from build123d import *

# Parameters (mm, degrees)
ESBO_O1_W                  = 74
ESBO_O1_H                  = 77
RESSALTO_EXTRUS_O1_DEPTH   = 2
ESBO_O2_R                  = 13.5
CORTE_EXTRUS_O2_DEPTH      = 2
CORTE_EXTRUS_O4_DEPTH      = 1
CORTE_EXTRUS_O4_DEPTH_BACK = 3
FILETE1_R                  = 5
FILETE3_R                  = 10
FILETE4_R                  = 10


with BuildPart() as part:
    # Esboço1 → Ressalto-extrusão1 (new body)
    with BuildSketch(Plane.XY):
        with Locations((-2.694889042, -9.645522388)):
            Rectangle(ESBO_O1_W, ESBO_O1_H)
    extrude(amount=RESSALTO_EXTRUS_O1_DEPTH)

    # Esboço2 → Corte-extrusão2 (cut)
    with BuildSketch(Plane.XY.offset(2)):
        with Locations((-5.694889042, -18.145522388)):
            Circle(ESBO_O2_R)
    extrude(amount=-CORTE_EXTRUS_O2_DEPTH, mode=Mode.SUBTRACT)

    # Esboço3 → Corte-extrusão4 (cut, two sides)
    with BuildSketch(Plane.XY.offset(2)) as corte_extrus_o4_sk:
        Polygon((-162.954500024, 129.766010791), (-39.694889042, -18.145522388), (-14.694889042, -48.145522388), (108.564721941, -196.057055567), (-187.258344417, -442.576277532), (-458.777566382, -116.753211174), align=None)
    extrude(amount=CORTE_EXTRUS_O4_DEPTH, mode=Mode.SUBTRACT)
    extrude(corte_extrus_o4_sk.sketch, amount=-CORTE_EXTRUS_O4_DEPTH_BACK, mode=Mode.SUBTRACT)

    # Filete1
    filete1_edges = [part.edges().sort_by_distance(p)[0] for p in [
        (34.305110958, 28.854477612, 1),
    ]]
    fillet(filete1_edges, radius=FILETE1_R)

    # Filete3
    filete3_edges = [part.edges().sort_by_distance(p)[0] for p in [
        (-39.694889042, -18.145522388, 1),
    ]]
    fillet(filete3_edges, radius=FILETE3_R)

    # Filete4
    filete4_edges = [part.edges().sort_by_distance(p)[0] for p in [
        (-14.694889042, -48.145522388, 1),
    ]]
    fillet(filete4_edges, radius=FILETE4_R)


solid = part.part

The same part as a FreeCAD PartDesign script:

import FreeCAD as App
import Part
import Sketcher
from FreeCAD import Vector


def edges_at(feature, points):
    """Names of the edges that pass closest to the given points."""
    edges = feature.Shape.Edges
    near = lambda p: min(range(len(edges)), key=lambda i: edges[i].distToShape(Part.Vertex(*p))[0])
    return sorted({f"Edge{near(p) + 1}" for p in points})

doc = App.newDocument("Part")
params = doc.addObject("Spreadsheet::Sheet", "Params")
for row, (alias, value) in enumerate([
    ("sketch1_width", "74 mm"),
    ("sketch1_height", "77 mm"),
    ("pad1_length", "2 mm"),
    ("sketch2_diameter", "27 mm"),
    ("pocket1_length", "2 mm"),
    ("fillet_radius", "5 mm"),
    ("fillet2_radius", "10 mm"),
    ("fillet3_radius", "10 mm"),
], start=1):
    params.set(f"A{row}", alias)
    params.set(f"B{row}", "=" + value)
    params.setAlias(f"B{row}", alias)

body = doc.addObject("PartDesign::Body", "Body")

# Sketch on XY plane
sketch1 = body.newObject("Sketcher::SketchObject", "Sketch")
sketch1.AttachmentSupport = (doc.getObject("XY_Plane"), [""])
sketch1.MapMode = "FlatFace"
sketch1.addGeometry([
    Part.LineSegment(Vector(-40, 29, 0), Vector(-40, -48, 0)),
    Part.LineSegment(Vector(-40, -48, 0), Vector(34, -48, 0)),
    Part.LineSegment(Vector(34, -48, 0), Vector(34, 29, 0)),
    Part.LineSegment(Vector(34, 29, 0), Vector(-40, 29, 0)),
], False)
sketch1.addConstraint([
    Sketcher.Constraint("Coincident", 0, 2, 1, 1),
    Sketcher.Constraint("Coincident", 1, 2, 2, 1),
    Sketcher.Constraint("Coincident", 2, 2, 3, 1),
    Sketcher.Constraint("Coincident", 3, 2, 0, 1),
    Sketcher.Constraint("Vertical", 0),
    Sketcher.Constraint("Horizontal", 1),
    Sketcher.Constraint("Vertical", 2),
    Sketcher.Constraint("Horizontal", 3),
    Sketcher.Constraint("DistanceX", 1, 1, 1, 2, 74.0),
    Sketcher.Constraint("DistanceY", 0, 2, 0, 1, 77.0),
    Sketcher.Constraint("DistanceX", 0, 2, -1, 1, 39.694889),
    Sketcher.Constraint("DistanceY", 0, 2, -1, 1, 48.145522),
])
sketch1.setExpression("Constraints[8]", "Params.sketch1_width")
sketch1.setExpression("Constraints[9]", "Params.sketch1_height")
pad1 = body.newObject("PartDesign::Pad", "Pad")
pad1.Profile = sketch1
pad1.setExpression("Length", "Params.pad1_length")

# Sketch on XY plane
sketch2 = body.newObject("Sketcher::SketchObject", "Sketch001")
sketch2.AttachmentSupport = (doc.getObject("XY_Plane"), [""])
sketch2.MapMode = "FlatFace"
sketch2.AttachmentOffset = App.Placement(Vector(0, 0, 2), App.Rotation())
sketch2.addGeometry(Part.Circle(Vector(-6, -18, 0), Vector(0, 0, 1), 14), False)
sketch2.addConstraint([
    Sketcher.Constraint("Diameter", 0, 27.0),
    Sketcher.Constraint("DistanceX", 0, 3, -1, 1, 5.694889),
    Sketcher.Constraint("DistanceY", 0, 3, -1, 1, 18.145522),
])
sketch2.setExpression("Constraints[0]", "Params.sketch2_diameter")
pocket1 = body.newObject("PartDesign::Pocket", "Pocket")
pocket1.Profile = sketch2
pocket1.setExpression("Length", "Params.pocket1_length")

# Sketch on XY plane
sketch3 = body.newObject("Sketcher::SketchObject", "Sketch002")
sketch3.AttachmentSupport = (doc.getObject("XY_Plane"), [""])
sketch3.MapMode = "FlatFace"
sketch3.AttachmentOffset = App.Placement(Vector(0, 0, 2), App.Rotation())
sketch3.addGeometry([
    Part.LineSegment(Vector(-40, -18, 0), Vector(-163, 130, 0)),  # 0
    Part.LineSegment(Vector(-163, 130, 0), Vector(-459, -117, 0)),  # 1
    Part.LineSegment(Vector(-459, -117, 0), Vector(-187, -443, 0)),  # 2
    Part.LineSegment(Vector(-187, -443, 0), Vector(109, -196, 0)),  # 3
    Part.LineSegment(Vector(109, -196, 0), Vector(-15, -48, 0)),  # 4
    Part.LineSegment(Vector(-15, -48, 0), Vector(-40, -18, 0)),  # 5
], False)
sketch3.addConstraint([
    Sketcher.Constraint("Coincident", 0, 2, 1, 1),
    Sketcher.Constraint("Coincident", 1, 2, 2, 1),
    Sketcher.Constraint("Coincident", 2, 2, 3, 1),
    Sketcher.Constraint("Coincident", 3, 2, 4, 1),
    Sketcher.Constraint("Coincident", 4, 2, 5, 1),
    Sketcher.Constraint("Coincident", 5, 2, 0, 1),
    Sketcher.Constraint("Perpendicular", 0, 1),
    Sketcher.Constraint("Perpendicular", 1, 2),
    Sketcher.Constraint("Perpendicular", 2, 3),
    Sketcher.Constraint("Perpendicular", 3, 4),
    Sketcher.Constraint("Parallel", 4, 5),
    Sketcher.Constraint("Equal", 0, 4),
    Sketcher.Constraint("DistanceX", 5, 2, 4, 2, 25.0),
    Sketcher.Constraint("DistanceY", 4, 2, 5, 2, 30.0),
    Sketcher.Constraint("DistanceX", 0, 2, -1, 1, 162.9545),
    Sketcher.Constraint("DistanceY", -1, 1, 0, 2, 129.766011),
    Sketcher.Constraint("DistanceY", 1, 2, -1, 1, 116.753211),
    Sketcher.Constraint("DistanceX", -1, 1, 3, 2, 108.564722),
])
pocket2 = body.newObject("PartDesign::Pocket", "Pocket001")
pocket2.Profile = sketch3
pocket2.Type = "ThroughAll"
pocket2.Midplane = True
doc.recompute()

fillet = body.newObject("PartDesign::Fillet", "Fillet")
fillet.Base = (pocket2, edges_at(pocket2, [(34.305, 28.854, 1)]))
fillet.setExpression("Radius", "Params.fillet_radius")
doc.recompute()

fillet2 = body.newObject("PartDesign::Fillet", "Fillet001")
fillet2.Base = (fillet, edges_at(fillet, [(-39.695, -18.146, 1)]))
fillet2.setExpression("Radius", "Params.fillet2_radius")
doc.recompute()

fillet3 = body.newObject("PartDesign::Fillet", "Fillet002")
fillet3.Base = (fillet2, edges_at(fillet2, [(-14.695, -48.146, 1)]))
fillet3.setExpression("Radius", "Params.fillet3_radius")

doc.recompute()
